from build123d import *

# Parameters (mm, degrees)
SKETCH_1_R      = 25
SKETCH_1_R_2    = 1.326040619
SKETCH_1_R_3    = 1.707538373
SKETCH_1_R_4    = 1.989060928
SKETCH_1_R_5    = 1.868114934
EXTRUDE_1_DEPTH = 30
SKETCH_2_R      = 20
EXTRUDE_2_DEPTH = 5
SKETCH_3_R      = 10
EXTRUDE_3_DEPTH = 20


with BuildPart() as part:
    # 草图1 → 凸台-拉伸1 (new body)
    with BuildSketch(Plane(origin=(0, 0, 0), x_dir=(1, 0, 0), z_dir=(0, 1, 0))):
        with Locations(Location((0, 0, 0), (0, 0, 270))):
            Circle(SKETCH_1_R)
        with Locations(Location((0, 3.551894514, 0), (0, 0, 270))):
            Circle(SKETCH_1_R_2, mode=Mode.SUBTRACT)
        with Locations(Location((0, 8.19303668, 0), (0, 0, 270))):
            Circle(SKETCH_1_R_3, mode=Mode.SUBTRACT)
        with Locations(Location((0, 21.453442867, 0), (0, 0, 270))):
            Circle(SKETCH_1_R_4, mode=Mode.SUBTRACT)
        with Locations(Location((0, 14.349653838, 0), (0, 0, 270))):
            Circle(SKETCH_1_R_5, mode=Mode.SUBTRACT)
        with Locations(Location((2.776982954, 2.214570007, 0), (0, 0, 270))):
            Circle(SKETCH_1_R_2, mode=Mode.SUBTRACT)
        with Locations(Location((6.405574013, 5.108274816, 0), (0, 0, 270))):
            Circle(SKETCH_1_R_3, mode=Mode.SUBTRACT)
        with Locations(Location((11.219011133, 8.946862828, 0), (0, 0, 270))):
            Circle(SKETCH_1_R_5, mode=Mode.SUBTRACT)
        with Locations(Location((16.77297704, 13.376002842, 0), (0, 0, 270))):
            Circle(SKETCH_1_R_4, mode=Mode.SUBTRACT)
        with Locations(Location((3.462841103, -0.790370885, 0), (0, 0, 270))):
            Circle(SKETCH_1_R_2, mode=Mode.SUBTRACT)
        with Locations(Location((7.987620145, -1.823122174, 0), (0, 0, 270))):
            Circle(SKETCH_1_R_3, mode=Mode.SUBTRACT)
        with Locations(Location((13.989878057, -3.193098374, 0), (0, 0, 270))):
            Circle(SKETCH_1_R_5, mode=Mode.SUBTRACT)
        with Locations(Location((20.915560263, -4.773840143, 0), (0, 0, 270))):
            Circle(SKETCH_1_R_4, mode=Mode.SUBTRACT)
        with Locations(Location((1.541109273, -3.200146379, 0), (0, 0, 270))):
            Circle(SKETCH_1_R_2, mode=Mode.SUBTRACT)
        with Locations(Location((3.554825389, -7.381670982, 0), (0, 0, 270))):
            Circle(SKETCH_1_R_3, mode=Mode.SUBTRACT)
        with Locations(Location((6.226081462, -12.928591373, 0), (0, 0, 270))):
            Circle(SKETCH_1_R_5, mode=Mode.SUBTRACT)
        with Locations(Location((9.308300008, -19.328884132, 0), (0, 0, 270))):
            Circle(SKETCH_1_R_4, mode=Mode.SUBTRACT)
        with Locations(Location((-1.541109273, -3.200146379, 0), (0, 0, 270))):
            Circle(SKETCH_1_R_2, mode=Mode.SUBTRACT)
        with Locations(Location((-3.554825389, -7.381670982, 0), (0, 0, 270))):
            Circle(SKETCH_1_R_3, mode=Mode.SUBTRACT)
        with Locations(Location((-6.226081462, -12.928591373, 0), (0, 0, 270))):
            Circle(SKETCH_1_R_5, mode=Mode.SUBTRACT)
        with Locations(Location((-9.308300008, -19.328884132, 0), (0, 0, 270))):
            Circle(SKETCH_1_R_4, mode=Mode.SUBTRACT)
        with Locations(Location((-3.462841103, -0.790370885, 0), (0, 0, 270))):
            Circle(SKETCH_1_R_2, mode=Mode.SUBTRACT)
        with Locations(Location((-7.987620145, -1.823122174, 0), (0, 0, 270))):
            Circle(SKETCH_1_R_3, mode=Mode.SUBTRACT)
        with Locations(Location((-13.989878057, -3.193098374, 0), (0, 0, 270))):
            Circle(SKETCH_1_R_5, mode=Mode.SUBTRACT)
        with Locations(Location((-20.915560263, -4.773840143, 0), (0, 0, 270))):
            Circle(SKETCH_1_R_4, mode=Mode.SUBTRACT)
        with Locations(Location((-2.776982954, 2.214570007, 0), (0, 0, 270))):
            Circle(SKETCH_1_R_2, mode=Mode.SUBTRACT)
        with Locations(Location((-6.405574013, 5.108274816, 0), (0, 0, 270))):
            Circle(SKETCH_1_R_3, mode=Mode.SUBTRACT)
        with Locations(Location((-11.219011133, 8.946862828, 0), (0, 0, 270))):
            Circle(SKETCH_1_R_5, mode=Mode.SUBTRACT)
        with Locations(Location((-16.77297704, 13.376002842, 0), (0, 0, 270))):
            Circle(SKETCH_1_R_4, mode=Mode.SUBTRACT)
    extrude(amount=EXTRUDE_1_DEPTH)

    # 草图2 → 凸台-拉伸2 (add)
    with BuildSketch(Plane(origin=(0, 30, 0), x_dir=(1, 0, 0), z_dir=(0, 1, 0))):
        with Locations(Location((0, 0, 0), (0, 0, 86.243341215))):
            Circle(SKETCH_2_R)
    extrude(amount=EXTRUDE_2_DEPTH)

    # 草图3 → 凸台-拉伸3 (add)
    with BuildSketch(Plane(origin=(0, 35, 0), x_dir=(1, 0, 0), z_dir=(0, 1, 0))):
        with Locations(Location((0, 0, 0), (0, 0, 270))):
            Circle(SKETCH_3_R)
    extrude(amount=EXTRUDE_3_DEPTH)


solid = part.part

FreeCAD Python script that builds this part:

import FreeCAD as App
import Part
import Sketcher
Q = App.Units.Quantity

doc = App.newDocument("Part")
body = doc.addObject("PartDesign::Body", "Body")

# Sketch on XZ plane
sketch1 = body.newObject("Sketcher::SketchObject", "Sketch")
sketch1.AttachmentSupport = (doc.getObject("XZ_Plane"), [""])
sketch1.MapMode = "FlatFace"
sketch1.addGeometry([
    Part.Circle(App.Vector(0, 0, 0), App.Vector(0, 0, 1), 25),  # 0
    Part.Circle(App.Vector(-16.8, -13.4, 0), App.Vector(0, 0, 1), 2),  # 1
    Part.Circle(App.Vector(0, -21.5, 0), App.Vector(0, 0, 1), 2),  # 2
    Part.Circle(App.Vector(0, -14.3, 0), App.Vector(0, 0, 1), 1.9),  # 3
    Part.Circle(App.Vector(-11.2, -8.9, 0), App.Vector(0, 0, 1), 1.9),  # 4
    Part.Circle(App.Vector(-6.4, -5.1, 0), App.Vector(0, 0, 1), 1.7),  # 5
    Part.Circle(App.Vector(0, -8.2, 0), App.Vector(0, 0, 1), 1.7),  # 6
    Part.Circle(App.Vector(-2.8, -2.2, 0), App.Vector(0, 0, 1), 1.3),  # 7
    Part.Circle(App.Vector(0, -3.6, 0), App.Vector(0, 0, 1), 1.3),  # 8
    Part.Circle(App.Vector(-20.9, 4.8, 0), App.Vector(0, 0, 1), 2),  # 9
    Part.Circle(App.Vector(-14, 3.2, 0), App.Vector(0, 0, 1), 1.9),  # 10
    Part.Circle(App.Vector(-8, 1.8, 0), App.Vector(0, 0, 1), 1.7),  # 11
    Part.Circle(App.Vector(-3.5, 0.8, 0), App.Vector(0, 0, 1), 1.3),  # 12
    Part.Circle(App.Vector(-1.5, 3.2, 0), App.Vector(0, 0, 1), 1.3),  # 13
    Part.Circle(App.Vector(-3.6, 7.4, 0), App.Vector(0, 0, 1), 1.7),  # 14
    Part.Circle(App.Vector(-6.2, 12.9, 0), App.Vector(0, 0, 1), 1.9),  # 15
    Part.Circle(App.Vector(-9.3, 19.3, 0), App.Vector(0, 0, 1), 2),  # 16
    Part.Circle(App.Vector(2.8, -2.2, 0), App.Vector(0, 0, 1), 1.3),  # 17
    Part.Circle(App.Vector(11.2, -8.9, 0), App.Vector(0, 0, 1), 1.9),  # 18
    Part.Circle(App.Vector(6.4, -5.1, 0), App.Vector(0, 0, 1), 1.7),  # 19
    Part.Circle(App.Vector(16.8, -13.4, 0), App.Vector(0, 0, 1), 2),  # 20
    Part.Circle(App.Vector(1.5, 3.2, 0), App.Vector(0, 0, 1), 1.3),  # 21
    Part.Circle(App.Vector(3.5, 0.8, 0), App.Vector(0, 0, 1), 1.3),  # 22
    Part.Circle(App.Vector(3.6, 7.4, 0), App.Vector(0, 0, 1), 1.7),  # 23
    Part.Circle(App.Vector(8, 1.8, 0), App.Vector(0, 0, 1), 1.7),  # 24
    Part.Circle(App.Vector(6.2, 12.9, 0), App.Vector(0, 0, 1), 1.9),  # 25
    Part.Circle(App.Vector(9.3, 19.3, 0), App.Vector(0, 0, 1), 2),  # 26
    Part.Circle(App.Vector(14, 3.2, 0), App.Vector(0, 0, 1), 1.9),  # 27
    Part.Circle(App.Vector(20.9, 4.8, 0), App.Vector(0, 0, 1), 2),  # 28
], False)
sketch1.addConstraint([
    Sketcher.Constraint("Coincident", 0, 3, -1, 1),
    Sketcher.Constraint("Equal", 1, 2),
    Sketcher.Constraint("Equal", 3, 4),
    Sketcher.Constraint("Equal", 5, 6),
    Sketcher.Constraint("Equal", 7, 8),
    Sketcher.Constraint("Equal", 2, 9),
    Sketcher.Constraint("Equal", 4, 10),
    Sketcher.Constraint("Equal", 6, 11),
    Sketcher.Constraint("Equal", 8, 12),
    Sketcher.Constraint("Equal", 12, 13),
    Sketcher.Constraint("Equal", 11, 14),
    Sketcher.Constraint("Equal", 10, 15),
    Sketcher.Constraint("Equal", 9, 16),
    Sketcher.Constraint("Equal", 13, 17),
    Sketcher.Constraint("Equal", 15, 18),
    Sketcher.Constraint("Equal", 14, 19),
    Sketcher.Constraint("Equal", 16, 20),
    Sketcher.Constraint("Equal", 17, 21),
    Sketcher.Constraint("Equal", 21, 22),
    Sketcher.Constraint("Equal", 19, 23),
    Sketcher.Constraint("Equal", 23, 24),
    Sketcher.Constraint("Equal", 18, 25),
    Sketcher.Constraint("Equal", 20, 26),
    Sketcher.Constraint("Equal", 25, 27),
    Sketcher.Constraint("Equal", 26, 28),
    Sketcher.Constraint("Symmetric", 7, 3, 17, 3, -2),
    Sketcher.Constraint("Symmetric", 4, 3, 18, 3, -2),
    Sketcher.Constraint("Symmetric", 5, 3, 19, 3, -2),
    Sketcher.Constraint("Symmetric", 1, 3, 20, 3, -2),
    Sketcher.Constraint("Symmetric", 13, 3, 21, 3, -2),
    Sketcher.Constraint("Symmetric", 12, 3, 22, 3, -2),
    Sketcher.Constraint("Symmetric", 14, 3, 23, 3, -2),
    Sketcher.Constraint("Symmetric", 11, 3, 24, 3, -2),
    Sketcher.Constraint("Symmetric", 15, 3, 25, 3, -2),
    Sketcher.Constraint("Symmetric", 16, 3, 26, 3, -2),
    Sketcher.Constraint("Symmetric", 10, 3, 27, 3, -2),
    Sketcher.Constraint("Symmetric", 9, 3, 28, 3, -2),
    Sketcher.Constraint("PointOnObject", 2, 3, -2),
    Sketcher.Constraint("PointOnObject", 3, 3, -2),
    Sketcher.Constraint("PointOnObject", 6, 3, -2),
    Sketcher.Constraint("PointOnObject", 8, 3, -2),
    Sketcher.Constraint("Diameter", 0, Q("50 mm")),
    Sketcher.Constraint("Diameter", 1, Q("3.978122 mm")),
    Sketcher.Constraint("Diameter", 3, Q("3.73623 mm")),
    Sketcher.Constraint("Diameter", 7, Q("2.652081 mm")),
    Sketcher.Constraint("Diameter", 5, Q("3.415077 mm")),
    Sketcher.Constraint("DistanceY", -1, 1, 10, 3, Q("3.193098 mm")),
    Sketcher.Constraint("DistanceX", 16, 3, -1, 1, Q("9.3083 mm")),
    Sketcher.Constraint("DistanceY", 12, 3, 14, 3, Q("6.5913 mm")),
    Sketcher.Constraint("DistanceX", 4, 3, -1, 1, Q("11.219011 mm")),
    Sketcher.Constraint("DistanceY", 7, 3, -1, 1, Q("2.21457 mm")),
    Sketcher.Constraint("DistanceX", 9, 3, -1, 1, Q("20.91556 mm")),
    Sketcher.Constraint("DistanceY", -1, 1, 9, 3, Q("4.77384 mm")),
    Sketcher.Constraint("DistanceX", 10, 3, -1, 1, Q("13.989878 mm")),
    Sketcher.Constraint("DistanceX", 11, 3, -1, 1, Q("7.98762 mm")),
    Sketcher.Constraint("DistanceX", 12, 3, -1, 1, Q("3.462841 mm")),
    Sketcher.Constraint("DistanceY", -1, 1, 12, 3, Q("0.790371 mm")),
    Sketcher.Constraint("DistanceX", 13, 3, -1, 1, Q("1.541109 mm")),
    Sketcher.Constraint("DistanceX", 15, 3, -1, 1, Q("6.226081 mm")),
    Sketcher.Constraint("DistanceY", -1, 1, 15, 3, Q("12.928591 mm")),
    Sketcher.Constraint("DistanceY", 2, 3, 1, 3, Q("8.07744 mm")),
    Sketcher.Constraint("DistanceY", 2, 3, 3, 3, Q("7.103789 mm")),
    Sketcher.Constraint("DistanceY", 1, 3, 4, 3, Q("4.42914 mm")),
    Sketcher.Constraint("DistanceY", 4, 3, 5, 3, Q("3.838588 mm")),
    Sketcher.Constraint("DistanceY", 6, 3, 5, 3, Q("3.084762 mm")),
    Sketcher.Constraint("DistanceX", 5, 3, 7, 3, Q("3.628591 mm")),
    Sketcher.Constraint("DistanceX", 4, 3, 7, 3, Q("8.442028 mm")),
    Sketcher.Constraint("DistanceY", 5, 3, 8, 3, Q("1.55638 mm")),
    Sketcher.Constraint("DistanceY", 4, 3, 10, 3, Q("12.139961 mm")),
    Sketcher.Constraint("DistanceY", 12, 3, 11, 3, Q("1.032751 mm")),
    Sketcher.Constraint("DistanceY", 8, 3, 13, 3, Q("6.752041 mm")),
    Sketcher.Constraint("DistanceY", 11, 3, 16, 3, Q("17.505762 mm")),
    Sketcher.Constraint("DistanceX", 14, 3, 23, 3, Q("7.109651 mm")),
    Sketcher.Constraint("DistanceX", 1, 3, -1, 1, Q("16.772977 mm")),
])
pad1 = body.newObject("PartDesign::Pad", "Pad")
pad1.Profile = sketch1
pad1.Length = 30
pad1.Reversed = True

# Sketch on XZ plane
sketch2 = body.newObject("Sketcher::SketchObject", "Sketch001")
sketch2.AttachmentSupport = (doc.getObject("XZ_Plane"), [""])
sketch2.MapMode = "FlatFace"
sketch2.AttachmentOffset = App.Placement(App.Vector(0, 0, -30), App.Rotation())
sketch2.addGeometry(Part.Circle(App.Vector(0, 0, 0), App.Vector(0, 0, 1), 20), False)
sketch2.addConstraint([
    Sketcher.Constraint("Coincident", 0, 3, -1, 1),
    Sketcher.Constraint("Diameter", 0, Q("40 mm")),
])
pad2 = body.newObject("PartDesign::Pad", "Pad001")
pad2.Profile = sketch2
pad2.Length = 5
pad2.Reversed = True

# Sketch on XZ plane
sketch3 = body.newObject("Sketcher::SketchObject", "Sketch002")
sketch3.AttachmentSupport = (doc.getObject("XZ_Plane"), [""])
sketch3.MapMode = "FlatFace"
sketch3.AttachmentOffset = App.Placement(App.Vector(0, 0, -35), App.Rotation())
sketch3.addGeometry(Part.Circle(App.Vector(0, 0, 0), App.Vector(0, 0, 1), 10), False)
sketch3.addConstraint([
    Sketcher.Constraint("Coincident", 0, 3, -1, 1),
    Sketcher.Constraint("Diameter", 0, Q("20 mm")),
])
pad3 = body.newObject("PartDesign::Pad", "Pad002")
pad3.Profile = sketch3
pad3.Length = 20
pad3.Reversed = True

doc.recompute()
